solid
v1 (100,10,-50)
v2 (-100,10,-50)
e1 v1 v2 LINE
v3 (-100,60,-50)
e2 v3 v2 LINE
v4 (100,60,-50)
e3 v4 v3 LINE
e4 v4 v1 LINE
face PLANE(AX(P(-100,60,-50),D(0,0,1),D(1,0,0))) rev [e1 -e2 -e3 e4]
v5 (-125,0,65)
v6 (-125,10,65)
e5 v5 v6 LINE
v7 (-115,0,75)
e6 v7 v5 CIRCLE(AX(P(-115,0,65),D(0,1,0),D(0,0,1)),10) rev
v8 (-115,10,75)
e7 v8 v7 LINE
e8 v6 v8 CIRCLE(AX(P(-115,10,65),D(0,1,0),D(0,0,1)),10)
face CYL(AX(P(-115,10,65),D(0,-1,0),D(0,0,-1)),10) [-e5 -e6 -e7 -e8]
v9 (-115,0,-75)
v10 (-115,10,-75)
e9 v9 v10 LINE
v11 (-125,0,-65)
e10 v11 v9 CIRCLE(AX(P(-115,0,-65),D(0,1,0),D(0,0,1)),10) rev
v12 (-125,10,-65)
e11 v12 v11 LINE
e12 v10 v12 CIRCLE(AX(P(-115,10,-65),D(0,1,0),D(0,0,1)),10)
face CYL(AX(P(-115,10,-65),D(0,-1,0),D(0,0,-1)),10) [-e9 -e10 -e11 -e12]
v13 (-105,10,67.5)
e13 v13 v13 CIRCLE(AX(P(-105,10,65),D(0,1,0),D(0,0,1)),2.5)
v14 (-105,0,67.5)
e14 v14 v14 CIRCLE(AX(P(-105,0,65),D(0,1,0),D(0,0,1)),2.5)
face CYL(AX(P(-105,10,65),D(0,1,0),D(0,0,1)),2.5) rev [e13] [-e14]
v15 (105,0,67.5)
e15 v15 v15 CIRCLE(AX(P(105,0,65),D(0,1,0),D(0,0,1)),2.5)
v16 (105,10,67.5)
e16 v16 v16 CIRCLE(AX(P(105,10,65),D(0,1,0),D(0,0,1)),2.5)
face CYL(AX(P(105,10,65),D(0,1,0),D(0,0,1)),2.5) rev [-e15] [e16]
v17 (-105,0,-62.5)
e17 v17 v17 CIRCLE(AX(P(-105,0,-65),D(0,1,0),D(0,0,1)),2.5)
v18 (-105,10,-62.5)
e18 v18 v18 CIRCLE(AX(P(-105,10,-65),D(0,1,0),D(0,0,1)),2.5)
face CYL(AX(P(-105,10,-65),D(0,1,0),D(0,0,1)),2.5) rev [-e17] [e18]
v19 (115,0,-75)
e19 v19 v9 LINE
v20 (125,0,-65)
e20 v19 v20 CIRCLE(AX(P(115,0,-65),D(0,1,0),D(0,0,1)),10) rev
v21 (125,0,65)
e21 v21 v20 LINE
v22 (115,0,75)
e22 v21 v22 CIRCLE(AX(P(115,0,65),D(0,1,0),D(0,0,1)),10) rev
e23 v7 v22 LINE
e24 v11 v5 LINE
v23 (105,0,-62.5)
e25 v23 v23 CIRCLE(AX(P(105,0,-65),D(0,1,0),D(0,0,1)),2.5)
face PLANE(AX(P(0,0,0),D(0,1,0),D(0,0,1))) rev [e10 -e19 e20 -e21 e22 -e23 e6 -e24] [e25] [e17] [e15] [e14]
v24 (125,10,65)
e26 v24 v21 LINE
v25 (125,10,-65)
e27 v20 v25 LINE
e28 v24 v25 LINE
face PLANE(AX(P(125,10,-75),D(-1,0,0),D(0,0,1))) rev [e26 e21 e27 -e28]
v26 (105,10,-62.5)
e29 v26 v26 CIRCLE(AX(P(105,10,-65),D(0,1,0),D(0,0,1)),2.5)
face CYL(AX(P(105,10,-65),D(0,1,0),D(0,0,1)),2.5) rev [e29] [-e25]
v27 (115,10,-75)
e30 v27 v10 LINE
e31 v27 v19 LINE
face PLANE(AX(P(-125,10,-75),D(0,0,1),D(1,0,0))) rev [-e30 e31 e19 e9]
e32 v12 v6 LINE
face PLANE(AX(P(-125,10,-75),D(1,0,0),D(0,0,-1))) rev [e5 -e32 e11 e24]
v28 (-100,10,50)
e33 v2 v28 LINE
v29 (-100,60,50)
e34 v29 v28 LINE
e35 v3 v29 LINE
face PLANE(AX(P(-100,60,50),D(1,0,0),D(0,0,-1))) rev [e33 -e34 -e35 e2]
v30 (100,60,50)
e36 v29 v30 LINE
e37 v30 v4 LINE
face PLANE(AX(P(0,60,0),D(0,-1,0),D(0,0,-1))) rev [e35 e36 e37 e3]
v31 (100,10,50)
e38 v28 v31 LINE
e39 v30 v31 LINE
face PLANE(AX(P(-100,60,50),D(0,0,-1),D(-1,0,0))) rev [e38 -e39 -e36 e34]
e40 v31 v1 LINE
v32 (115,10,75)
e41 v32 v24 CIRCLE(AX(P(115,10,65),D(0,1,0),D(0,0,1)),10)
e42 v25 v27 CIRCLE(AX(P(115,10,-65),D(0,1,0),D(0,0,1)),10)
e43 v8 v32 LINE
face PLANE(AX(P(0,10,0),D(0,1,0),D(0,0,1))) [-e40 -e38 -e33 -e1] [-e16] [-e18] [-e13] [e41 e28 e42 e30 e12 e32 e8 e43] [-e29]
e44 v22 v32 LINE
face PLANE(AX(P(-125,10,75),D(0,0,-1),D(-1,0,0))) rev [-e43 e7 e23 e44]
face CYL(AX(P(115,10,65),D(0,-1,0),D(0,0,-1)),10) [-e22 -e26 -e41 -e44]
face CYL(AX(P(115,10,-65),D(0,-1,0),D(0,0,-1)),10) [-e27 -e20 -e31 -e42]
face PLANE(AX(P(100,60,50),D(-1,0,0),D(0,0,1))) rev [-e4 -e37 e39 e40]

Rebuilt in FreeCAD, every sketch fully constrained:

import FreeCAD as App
import Part
import Sketcher
Q = App.Units.Quantity


def edges_at(feature, points):
    """Names of the edges that pass closest to the given points."""
    edges = feature.Shape.Edges
    near = lambda p: min(range(len(edges)), key=lambda i: edges[i].distToShape(Part.Vertex(*p))[0])
    return sorted({f"Edge{near(p) + 1}" for p in points})

doc = App.newDocument("Part")
body = doc.addObject("PartDesign::Body", "Body")

# Sketch on XZ plane
sketch1 = doc.addObject("Sketcher::SketchObject", "Sketch")
body.addObject(sketch1)
sketch1.AttachmentSupport = (doc.XZ_Plane, [""])
sketch1.MapMode = "FlatFace"
sketch1.addGeometry(Part.LineSegment(App.Vector(-125, -75, 0), App.Vector(-125, 75, 0)), False)
sketch1.addGeometry(Part.LineSegment(App.Vector(-125, 75, 0), App.Vector(125, 75, 0)), False)
sketch1.addGeometry(Part.LineSegment(App.Vector(125, 75, 0), App.Vector(125, -75, 0)), False)
sketch1.addGeometry(Part.LineSegment(App.Vector(125, -75, 0), App.Vector(-125, -75, 0)), False)
sketch1.addConstraint(Sketcher.Constraint("Coincident", 0, 2, 1, 1))
sketch1.addConstraint(Sketcher.Constraint("Coincident", 1, 2, 2, 1))
sketch1.addConstraint(Sketcher.Constraint("Coincident", 2, 2, 3, 1))
sketch1.addConstraint(Sketcher.Constraint("Coincident", 3, 2, 0, 1))
sketch1.addConstraint(Sketcher.Constraint("Vertical", 0))
sketch1.addConstraint(Sketcher.Constraint("Horizontal", 1))
sketch1.addConstraint(Sketcher.Constraint("Vertical", 2))
sketch1.addConstraint(Sketcher.Constraint("Horizontal", 3))
sketch1.addConstraint(Sketcher.Constraint("Symmetric", 0, 2, 2, 2, -1, 1))
sketch1.addConstraint(Sketcher.Constraint("DistanceX", 1, 1, 1, 2, Q("250 mm")))
sketch1.addConstraint(Sketcher.Constraint("DistanceY", 0, 1, 0, 2, Q("150 mm")))
pad1 = doc.addObject("PartDesign::Pad", "Pad")
body.addObject(pad1)
pad1.Profile = sketch1
pad1.Length = 10
pad1.Reversed = True
doc.recompute()

fillet = doc.addObject("PartDesign::Fillet", "Fillet")
body.addObject(fillet)
fillet.Base = (pad1, edges_at(pad1, [
    (125, 5, 75),
    (-125, 5, 75),
    (-125, 5, -75),
    (125, 5, -75),
]))
fillet.Radius = 10

# Sketch on XZ plane
sketch2 = doc.addObject("Sketcher::SketchObject", "Sketch001")
body.addObject(sketch2)
sketch2.AttachmentSupport = (doc.XZ_Plane, [""])
sketch2.MapMode = "FlatFace"
sketch2.AttachmentOffset = App.Placement(App.Vector(0, 0, -10), App.Rotation())
sketch2.addGeometry(Part.LineSegment(App.Vector(-100, -50, 0), App.Vector(-100, 50, 0)), False)
sketch2.addGeometry(Part.LineSegment(App.Vector(-100, 50, 0), App.Vector(100, 50, 0)), False)
sketch2.addGeometry(Part.LineSegment(App.Vector(100, 50, 0), App.Vector(100, -50, 0)), False)
sketch2.addGeometry(Part.LineSegment(App.Vector(100, -50, 0), App.Vector(-100, -50, 0)), False)
sketch2.addConstraint(Sketcher.Constraint("Coincident", 0, 2, 1, 1))
sketch2.addConstraint(Sketcher.Constraint("Coincident", 1, 2, 2, 1))
sketch2.addConstraint(Sketcher.Constraint("Coincident", 2, 2, 3, 1))
sketch2.addConstraint(Sketcher.Constraint("Coincident", 3, 2, 0, 1))
sketch2.addConstraint(Sketcher.Constraint("Vertical", 0))
sketch2.addConstraint(Sketcher.Constraint("Horizontal", 1))
sketch2.addConstraint(Sketcher.Constraint("Vertical", 2))
sketch2.addConstraint(Sketcher.Constraint("Horizontal", 3))
sketch2.addConstraint(Sketcher.Constraint("Symmetric", 0, 2, 2, 2, -1, 1))
sketch2.addConstraint(Sketcher.Constraint("DistanceX", 1, 1, 1, 2, Q("200 mm")))
sketch2.addConstraint(Sketcher.Constraint("DistanceY", 0, 1, 0, 2, Q("100 mm")))
pad2 = doc.addObject("PartDesign::Pad", "Pad001")
body.addObject(pad2)
pad2.Profile = sketch2
pad2.Length = 50
pad2.Reversed = True

# Sketch on XZ plane
sketch3 = doc.addObject("Sketcher::SketchObject", "Sketch002")
body.addObject(sketch3)
sketch3.AttachmentSupport = (doc.XZ_Plane, [""])
sketch3.MapMode = "FlatFace"
sketch3.AttachmentOffset = App.Placement(App.Vector(0, 0, -10), App.Rotation())
sketch3.addGeometry(Part.Circle(App.Vector(-105, 65, 0), App.Vector(0, 0, 1), 2.5), False)
sketch3.addGeometry(Part.Circle(App.Vector(105, -65, 0), App.Vector(0, 0, 1), 2.5), False)
sketch3.addGeometry(Part.Circle(App.Vector(-105, -65, 0), App.Vector(0, 0, 1), 2.5), False)
sketch3.addGeometry(Part.Circle(App.Vector(105, 65, 0), App.Vector(0, 0, 1), 2.5), False)
sketch3.addConstraint(Sketcher.Constraint("Equal", 0, 1))
sketch3.addConstraint(Sketcher.Constraint("Equal", 1, 2))
sketch3.addConstraint(Sketcher.Constraint("Equal", 2, 3))
sketch3.addConstraint(Sketcher.Constraint("Symmetric", 0, 3, 1, 3, -1, 1))
sketch3.addConstraint(Sketcher.Constraint("Symmetric", 2, 3, 3, 3, -1, 1))
sketch3.addConstraint(Sketcher.Constraint("Symmetric", 1, 3, 2, 3, -2))
sketch3.addConstraint(Sketcher.Constraint("Diameter", 0, Q("5 mm")))
sketch3.addConstraint(Sketcher.Constraint("DistanceX", 0, 3, -1, 1, Q("105 mm")))
sketch3.addConstraint(Sketcher.Constraint("DistanceY", -1, 1, 0, 3, Q("65 mm")))
doc.recompute()
hole = doc.addObject("PartDesign::Hole", "Hole")
body.addObject(hole)
hole.Profile = sketch3
hole.ThreadType = "None"
hole.Diameter = 5
hole.DepthType = "Dimension"
hole.Depth = 15
hole.DrillPoint = "Angled"
hole.DrillPointAngle = 118
hole.Reversed = True

doc.recompute()
